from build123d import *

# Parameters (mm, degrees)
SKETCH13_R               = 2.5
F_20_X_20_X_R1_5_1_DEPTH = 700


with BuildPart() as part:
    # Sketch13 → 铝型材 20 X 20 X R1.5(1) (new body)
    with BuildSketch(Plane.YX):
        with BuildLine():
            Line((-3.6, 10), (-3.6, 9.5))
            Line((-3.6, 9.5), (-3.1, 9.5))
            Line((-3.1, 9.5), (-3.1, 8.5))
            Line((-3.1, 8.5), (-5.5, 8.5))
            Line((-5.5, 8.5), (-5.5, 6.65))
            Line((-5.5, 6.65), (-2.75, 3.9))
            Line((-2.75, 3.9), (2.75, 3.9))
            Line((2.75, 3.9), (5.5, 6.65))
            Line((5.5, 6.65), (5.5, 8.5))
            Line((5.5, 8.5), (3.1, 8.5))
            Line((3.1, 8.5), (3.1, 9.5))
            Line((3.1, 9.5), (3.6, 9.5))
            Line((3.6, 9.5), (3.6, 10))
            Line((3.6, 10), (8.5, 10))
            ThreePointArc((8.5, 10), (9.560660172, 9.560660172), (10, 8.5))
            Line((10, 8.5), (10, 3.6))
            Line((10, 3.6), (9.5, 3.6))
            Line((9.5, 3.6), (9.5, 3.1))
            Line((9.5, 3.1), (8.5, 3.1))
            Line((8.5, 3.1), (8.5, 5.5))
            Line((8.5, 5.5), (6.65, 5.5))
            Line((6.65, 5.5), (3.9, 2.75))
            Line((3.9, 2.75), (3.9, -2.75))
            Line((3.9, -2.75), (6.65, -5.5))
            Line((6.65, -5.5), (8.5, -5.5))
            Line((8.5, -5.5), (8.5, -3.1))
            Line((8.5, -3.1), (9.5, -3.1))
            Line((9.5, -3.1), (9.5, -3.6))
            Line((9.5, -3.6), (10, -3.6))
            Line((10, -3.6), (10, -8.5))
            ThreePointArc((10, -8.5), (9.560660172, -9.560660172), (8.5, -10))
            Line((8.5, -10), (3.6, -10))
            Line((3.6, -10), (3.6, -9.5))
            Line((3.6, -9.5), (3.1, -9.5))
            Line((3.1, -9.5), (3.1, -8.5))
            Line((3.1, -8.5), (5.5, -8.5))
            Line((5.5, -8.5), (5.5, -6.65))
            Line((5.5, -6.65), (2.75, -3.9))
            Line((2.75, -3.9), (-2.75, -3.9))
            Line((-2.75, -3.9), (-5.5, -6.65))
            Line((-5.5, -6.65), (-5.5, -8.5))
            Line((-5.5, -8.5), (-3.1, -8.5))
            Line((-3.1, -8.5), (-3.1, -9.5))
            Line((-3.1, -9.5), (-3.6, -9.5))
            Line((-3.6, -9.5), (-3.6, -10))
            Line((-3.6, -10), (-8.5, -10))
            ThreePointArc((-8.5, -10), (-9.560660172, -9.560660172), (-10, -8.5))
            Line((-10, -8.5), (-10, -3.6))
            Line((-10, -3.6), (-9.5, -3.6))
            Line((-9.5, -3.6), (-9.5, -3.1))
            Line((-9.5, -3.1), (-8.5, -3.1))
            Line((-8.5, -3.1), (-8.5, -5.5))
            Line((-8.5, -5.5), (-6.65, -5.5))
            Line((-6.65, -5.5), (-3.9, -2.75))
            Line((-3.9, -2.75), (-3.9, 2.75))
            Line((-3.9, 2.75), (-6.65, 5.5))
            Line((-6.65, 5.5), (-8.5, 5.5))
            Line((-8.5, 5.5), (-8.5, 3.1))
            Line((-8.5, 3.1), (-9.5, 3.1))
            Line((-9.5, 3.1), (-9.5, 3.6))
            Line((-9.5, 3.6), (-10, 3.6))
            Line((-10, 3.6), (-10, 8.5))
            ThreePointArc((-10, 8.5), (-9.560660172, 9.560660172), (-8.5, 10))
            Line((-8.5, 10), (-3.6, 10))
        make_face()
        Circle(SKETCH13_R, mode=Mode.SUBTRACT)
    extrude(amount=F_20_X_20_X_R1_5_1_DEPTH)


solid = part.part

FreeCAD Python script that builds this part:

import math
import FreeCAD as App
import Part
import Sketcher
from FreeCAD import Vector
Q = App.Units.Quantity

doc = App.newDocument("Part")
body = doc.addObject("PartDesign::Body", "Body")

# Sketch on XY plane
sketch1 = body.newObject("Sketcher::SketchObject", "Sketch")
sketch1.AttachmentSupport = (doc.getObject("XY_Plane"), [""])
sketch1.MapMode = "FlatFace"
sketch1.addGeometry(Part.LineSegment(Vector(9.5, -3.6, 0), Vector(10, -3.6, 0)), False)
sketch1.addGeometry(Part.LineSegment(Vector(10, -3.6, 0), Vector(10, -8.5, 0)), False)
sketch1.addGeometry(Part.ArcOfCircle(Part.Circle(Vector(8.5, -8.5, 0), Vector(0, 0, 1), 1.5), math.radians(-90), math.radians(0)), False)
sketch1.addGeometry(Part.LineSegment(Vector(8.5, -10, 0), Vector(3.6, -10, 0)), False)
sketch1.addGeometry(Part.LineSegment(Vector(3.6, -10, 0), Vector(3.6, -9.5, 0)), False)
sketch1.addGeometry(Part.LineSegment(Vector(3.6, -9.5, 0), Vector(3.1, -9.5, 0)), False)
sketch1.addGeometry(Part.LineSegment(Vector(3.1, -9.5, 0), Vector(3.1, -8.5, 0)), False)
sketch1.addGeometry(Part.LineSegment(Vector(3.1, -8.5, 0), Vector(5.5, -8.5, 0)), False)
sketch1.addGeometry(Part.LineSegment(Vector(5.5, -8.5, 0), Vector(5.5, -6.65, 0)), False)
sketch1.addGeometry(Part.LineSegment(Vector(5.5, -6.65, 0), Vector(2.75, -3.9, 0)), False)
sketch1.addGeometry(Part.LineSegment(Vector(2.75, -3.9, 0), Vector(-2.75, -3.9, 0)), False)
sketch1.addGeometry(Part.LineSegment(Vector(-2.75, -3.9, 0), Vector(-5.5, -6.65, 0)), False)
sketch1.addGeometry(Part.LineSegment(Vector(-5.5, -6.65, 0), Vector(-5.5, -8.5, 0)), False)
sketch1.addGeometry(Part.LineSegment(Vector(-5.5, -8.5, 0), Vector(-3.1, -8.5, 0)), False)
sketch1.addGeometry(Part.LineSegment(Vector(-3.1, -8.5, 0), Vector(-3.1, -9.5, 0)), False)
sketch1.addGeometry(Part.LineSegment(Vector(-3.1, -9.5, 0), Vector(-3.6, -9.5, 0)), False)
sketch1.addGeometry(Part.LineSegment(Vector(-3.6, -9.5, 0), Vector(-3.6, -10, 0)), False)
sketch1.addGeometry(Part.LineSegment(Vector(-3.6, -10, 0), Vector(-8.5, -10, 0)), False)
sketch1.addGeometry(Part.ArcOfCircle(Part.Circle(Vector(-8.5, -8.5, 0), Vector(0, 0, 1), 1.5), math.radians(180), math.radians(270)), False)
sketch1.addGeometry(Part.LineSegment(Vector(-10, -8.5, 0), Vector(-10, -3.6, 0)), False)
sketch1.addGeometry(Part.LineSegment(Vector(-10, -3.6, 0), Vector(-9.5, -3.6, 0)), False)
sketch1.addGeometry(Part.LineSegment(Vector(-9.5, -3.6, 0), Vector(-9.5, -3.1, 0)), False)
sketch1.addGeometry(Part.LineSegment(Vector(-9.5, -3.1, 0), Vector(-8.5, -3.1, 0)), False)
sketch1.addGeometry(Part.LineSegment(Vector(-8.5, -3.1, 0), Vector(-8.5, -5.5, 0)), False)
sketch1.addGeometry(Part.LineSegment(Vector(-8.5, -5.5, 0), Vector(-6.65, -5.5, 0)), False)
sketch1.addGeometry(Part.LineSegment(Vector(-6.65, -5.5, 0), Vector(-3.9, -2.75, 0)), False)
sketch1.addGeometry(Part.LineSegment(Vector(-3.9, -2.75, 0), Vector(-3.9, 2.75, 0)), False)
sketch1.addGeometry(Part.LineSegment(Vector(-3.9, 2.75, 0), Vector(-6.65, 5.5, 0)), False)
sketch1.addGeometry(Part.LineSegment(Vector(-6.65, 5.5, 0), Vector(-8.5, 5.5, 0)), False)
sketch1.addGeometry(Part.LineSegment(Vector(-8.5, 5.5, 0), Vector(-8.5, 3.1, 0)), False)
sketch1.addGeometry(Part.LineSegment(Vector(-8.5, 3.1, 0), Vector(-9.5, 3.1, 0)), False)
sketch1.addGeometry(Part.LineSegment(Vector(-9.5, 3.1, 0), Vector(-9.5, 3.6, 0)), False)
sketch1.addGeometry(Part.LineSegment(Vector(-9.5, 3.6, 0), Vector(-10, 3.6, 0)), False)
sketch1.addGeometry(Part.LineSegment(Vector(-10, 3.6, 0), Vector(-10, 8.5, 0)), False)
sketch1.addGeometry(Part.ArcOfCircle(Part.Circle(Vector(-8.5, 8.5, 0), Vector(0, 0, 1), 1.5), math.radians(90), math.radians(180)), False)
sketch1.addGeometry(Part.LineSegment(Vector(-8.5, 10, 0), Vector(-3.6, 10, 0)), False)
sketch1.addGeometry(Part.LineSegment(Vector(-3.6, 10, 0), Vector(-3.6, 9.5, 0)), False)
sketch1.addGeometry(Part.LineSegment(Vector(-3.6, 9.5, 0), Vector(-3.1, 9.5, 0)), False)
sketch1.addGeometry(Part.LineSegment(Vector(-3.1, 9.5, 0), Vector(-3.1, 8.5, 0)), False)
sketch1.addGeometry(Part.LineSegment(Vector(-3.1, 8.5, 0), Vector(-5.5, 8.5, 0)), False)
sketch1.addGeometry(Part.LineSegment(Vector(-5.5, 8.5, 0), Vector(-5.5, 6.65, 0)), False)
sketch1.addGeometry(Part.LineSegment(Vector(-5.5, 6.65, 0), Vector(-2.75, 3.9, 0)), False)
sketch1.addGeometry(Part.LineSegment(Vector(-2.75, 3.9, 0), Vector(2.75, 3.9, 0)), False)
sketch1.addGeometry(Part.LineSegment(Vector(2.75, 3.9, 0), Vector(5.5, 6.65, 0)), False)
sketch1.addGeometry(Part.LineSegment(Vector(5.5, 6.65, 0), Vector(5.5, 8.5, 0)), False)
sketch1.addGeometry(Part.LineSegment(Vector(5.5, 8.5, 0), Vector(3.1, 8.5, 0)), False)
sketch1.addGeometry(Part.LineSegment(Vector(3.1, 8.5, 0), Vector(3.1, 9.5, 0)), False)
sketch1.addGeometry(Part.LineSegment(Vector(3.1, 9.5, 0), Vector(3.6, 9.5, 0)), False)
sketch1.addGeometry(Part.LineSegment(Vector(3.6, 9.5, 0), Vector(3.6, 10, 0)), False)
sketch1.addGeometry(Part.LineSegment(Vector(3.6, 10, 0), Vector(8.5, 10, 0)), False)
sketch1.addGeometry(Part.ArcOfCircle(Part.Circle(Vector(8.5, 8.5, 0), Vector(0, 0, 1), 1.5), math.radians(0), math.radians(90)), False)
sketch1.addGeometry(Part.LineSegment(Vector(10, 8.5, 0), Vector(10, 3.6, 0)), False)
sketch1.addGeometry(Part.LineSegment(Vector(10, 3.6, 0), Vector(9.5, 3.6, 0)), False)
sketch1.addGeometry(Part.LineSegment(Vector(9.5, 3.6, 0), Vector(9.5, 3.1, 0)), False)
sketch1.addGeometry(Part.LineSegment(Vector(9.5, 3.1, 0), Vector(8.5, 3.1, 0)), False)
sketch1.addGeometry(Part.LineSegment(Vector(8.5, 3.1, 0), Vector(8.5, 5.5, 0)), False)
sketch1.addGeometry(Part.LineSegment(Vector(8.5, 5.5, 0), Vector(6.65, 5.5, 0)), False)
sketch1.addGeometry(Part.LineSegment(Vector(6.65, 5.5, 0), Vector(3.9, 2.75, 0)), False)
sketch1.addGeometry(Part.LineSegment(Vector(3.9, 2.75, 0), Vector(3.9, -2.75, 0)), False)
sketch1.addGeometry(Part.LineSegment(Vector(3.9, -2.75, 0), Vector(6.65, -5.5, 0)), False)
sketch1.addGeometry(Part.LineSegment(Vector(6.65, -5.5, 0), Vector(8.5, -5.5, 0)), False)
sketch1.addGeometry(Part.LineSegment(Vector(8.5, -5.5, 0), Vector(8.5, -3.1, 0)), False)
sketch1.addGeometry(Part.LineSegment(Vector(8.5, -3.1, 0), Vector(9.5, -3.1, 0)), False)
sketch1.addGeometry(Part.LineSegment(Vector(9.5, -3.1, 0), Vector(9.5, -3.6, 0)), False)
sketch1.addGeometry(Part.Circle(Vector(0, 0, 0), Vector(0, 0, 1), 2.5), False)
sketch1.addConstraint(Sketcher.Constraint("Coincident", 0, 2, 1, 1))
sketch1.addConstraint(Sketcher.Constraint("Tangent", 1, 2, 2, 2))
sketch1.addConstraint(Sketcher.Constraint("Tangent", 2, 1, 3, 1))
sketch1.addConstraint(Sketcher.Constraint("Coincident", 3, 2, 4, 1))
sketch1.addConstraint(Sketcher.Constraint("Coincident", 4, 2, 5, 1))
sketch1.addConstraint(Sketcher.Constraint("Coincident", 5, 2, 6, 1))
sketch1.addConstraint(Sketcher.Constraint("Coincident", 6, 2, 7, 1))
sketch1.addConstraint(Sketcher.Constraint("Coincident", 7, 2, 8, 1))
sketch1.addConstraint(Sketcher.Constraint("Coincident", 8, 2, 9, 1))
sketch1.addConstraint(Sketcher.Constraint("Coincident", 9, 2, 10, 1))
sketch1.addConstraint(Sketcher.Constraint("Coincident", 10, 2, 11, 1))
sketch1.addConstraint(Sketcher.Constraint("Coincident", 11, 2, 12, 1))
sketch1.addConstraint(Sketcher.Constraint("Coincident", 12, 2, 13, 1))
sketch1.addConstraint(Sketcher.Constraint("Coincident", 13, 2, 14, 1))
sketch1.addConstraint(Sketcher.Constraint("Coincident", 14, 2, 15, 1))
sketch1.addConstraint(Sketcher.Constraint("Coincident", 15, 2, 16, 1))
sketch1.addConstraint(Sketcher.Constraint("Coincident", 16, 2, 17, 1))
sketch1.addConstraint(Sketcher.Constraint("Tangent", 17, 2, 18, 2))
sketch1.addConstraint(Sketcher.Constraint("Tangent", 18, 1, 19, 1))
sketch1.addConstraint(Sketcher.Constraint("Coincident", 19, 2, 20, 1))
sketch1.addConstraint(Sketcher.Constraint("Coincident", 20, 2, 21, 1))
sketch1.addConstraint(Sketcher.Constraint("Coincident", 21, 2, 22, 1))
sketch1.addConstraint(Sketcher.Constraint("Coincident", 22, 2, 23, 1))
sketch1.addConstraint(Sketcher.Constraint("Coincident", 23, 2, 24, 1))
sketch1.addConstraint(Sketcher.Constraint("Coincident", 24, 2, 25, 1))
sketch1.addConstraint(Sketcher.Constraint("Coincident", 25, 2, 26, 1))
sketch1.addConstraint(Sketcher.Constraint("Coincident", 26, 2, 27, 1))
sketch1.addConstraint(Sketcher.Constraint("Coincident", 27, 2, 28, 1))
sketch1.addConstraint(Sketcher.Constraint("Coincident", 28, 2, 29, 1))
sketch1.addConstraint(Sketcher.Constraint("Coincident", 29, 2, 30, 1))
sketch1.addConstraint(Sketcher.Constraint("Coincident", 30, 2, 31, 1))
sketch1.addConstraint(Sketcher.Constraint("Coincident", 31, 2, 32, 1))
sketch1.addConstraint(Sketcher.Constraint("Coincident", 32, 2, 33, 1))
sketch1.addConstraint(Sketcher.Constraint("Tangent", 33, 2, 34, 2))
sketch1.addConstraint(Sketcher.Constraint("Tangent", 34, 1, 35, 1))
sketch1.addConstraint(Sketcher.Constraint("Coincident", 35, 2, 36, 1))
sketch1.addConstraint(Sketcher.Constraint("Coincident", 36, 2, 37, 1))
sketch1.addConstraint(Sketcher.Constraint("Coincident", 37, 2, 38, 1))
sketch1.addConstraint(Sketcher.Constraint("Coincident", 38, 2, 39, 1))
sketch1.addConstraint(Sketcher.Constraint("Coincident", 39, 2, 40, 1))
sketch1.addConstraint(Sketcher.Constraint("Coincident", 40, 2, 41, 1))
sketch1.addConstraint(Sketcher.Constraint("Coincident", 41, 2, 42, 1))
sketch1.addConstraint(Sketcher.Constraint("Coincident", 42, 2, 43, 1))
sketch1.addConstraint(Sketcher.Constraint("Coincident", 43, 2, 44, 1))
sketch1.addConstraint(Sketcher.Constraint("Coincident", 44, 2, 45, 1))
sketch1.addConstraint(Sketcher.Constraint("Coincident", 45, 2, 46, 1))
sketch1.addConstraint(Sketcher.Constraint("Coincident", 46, 2, 47, 1))
sketch1.addConstraint(Sketcher.Constraint("Coincident", 47, 2, 48, 1))
sketch1.addConstraint(Sketcher.Constraint("Coincident", 48, 2, 49, 1))
sketch1.addConstraint(Sketcher.Constraint("Tangent", 49, 2, 50, 2))
sketch1.addConstraint(Sketcher.Constraint("Tangent", 50, 1, 51, 1))
sketch1.addConstraint(Sketcher.Constraint("Coincident", 51, 2, 52, 1))
sketch1.addConstraint(Sketcher.Constraint("Coincident", 52, 2, 53, 1))
sketch1.addConstraint(Sketcher.Constraint("Coincident", 53, 2, 54, 1))
sketch1.addConstraint(Sketcher.Constraint("Coincident", 54, 2, 55, 1))
sketch1.addConstraint(Sketcher.Constraint("Coincident", 55, 2, 56, 1))
sketch1.addConstraint(Sketcher.Constraint("Coincident", 56, 2, 57, 1))
sketch1.addConstraint(Sketcher.Constraint("Coincident", 57, 2, 58, 1))
sketch1.addConstraint(Sketcher.Constraint("Coincident", 58, 2, 59, 1))
sketch1.addConstraint(Sketcher.Constraint("Coincident", 59, 2, 60, 1))
sketch1.addConstraint(Sketcher.Constraint("Coincident", 60, 2, 61, 1))
sketch1.addConstraint(Sketcher.Constraint("Coincident", 61, 2, 62, 1))
sketch1.addConstraint(Sketcher.Constraint("Coincident", 62, 2, 63, 1))
sketch1.addConstraint(Sketcher.Constraint("Coincident", 63, 2, 0, 1))
sketch1.addConstraint(Sketcher.Constraint("Horizontal", 0))
sketch1.addConstraint(Sketcher.Constraint("Vertical", 1))
sketch1.addConstraint(Sketcher.Constraint("Horizontal", 3))
sketch1.addConstraint(Sketcher.Constraint("Vertical", 4))
sketch1.addConstraint(Sketcher.Constraint("Horizontal", 5))
sketch1.addConstraint(Sketcher.Constraint("Vertical", 6))
sketch1.addConstraint(Sketcher.Constraint("Horizontal", 7))
sketch1.addConstraint(Sketcher.Constraint("Vertical", 8))
sketch1.addConstraint(Sketcher.Constraint("Horizontal", 10))
sketch1.addConstraint(Sketcher.Constraint("Vertical", 12))
sketch1.addConstraint(Sketcher.Constraint("Horizontal", 13))
sketch1.addConstraint(Sketcher.Constraint("Vertical", 14))
sketch1.addConstraint(Sketcher.Constraint("Horizontal", 15))
sketch1.addConstraint(Sketcher.Constraint("Vertical", 16))
sketch1.addConstraint(Sketcher.Constraint("Horizontal", 17))
sketch1.addConstraint(Sketcher.Constraint("Vertical", 19))
sketch1.addConstraint(Sketcher.Constraint("Horizontal", 20))
sketch1.addConstraint(Sketcher.Constraint("Vertical", 21))
sketch1.addConstraint(Sketcher.Constraint("Horizontal", 22))
sketch1.addConstraint(Sketcher.Constraint("Vertical", 23))
sketch1.addConstraint(Sketcher.Constraint("Horizontal", 24))
sketch1.addConstraint(Sketcher.Constraint("Vertical", 26))
sketch1.addConstraint(Sketcher.Constraint("Horizontal", 28))
sketch1.addConstraint(Sketcher.Constraint("Vertical", 29))
sketch1.addConstraint(Sketcher.Constraint("Horizontal", 30))
sketch1.addConstraint(Sketcher.Constraint("Vertical", 31))
sketch1.addConstraint(Sketcher.Constraint("Horizontal", 32))
sketch1.addConstraint(Sketcher.Constraint("Vertical", 33))
sketch1.addConstraint(Sketcher.Constraint("Horizontal", 35))
sketch1.addConstraint(Sketcher.Constraint("Vertical", 36))
sketch1.addConstraint(Sketcher.Constraint("Horizontal", 37))
sketch1.addConstraint(Sketcher.Constraint("Vertical", 38))
sketch1.addConstraint(Sketcher.Constraint("Horizontal", 39))
sketch1.addConstraint(Sketcher.Constraint("Vertical", 40))
sketch1.addConstraint(Sketcher.Constraint("Horizontal", 42))
sketch1.addConstraint(Sketcher.Constraint("Vertical", 44))
sketch1.addConstraint(Sketcher.Constraint("Horizontal", 45))
sketch1.addConstraint(Sketcher.Constraint("Vertical", 46))
sketch1.addConstraint(Sketcher.Constraint("Horizontal", 47))
sketch1.addConstraint(Sketcher.Constraint("Vertical", 48))
sketch1.addConstraint(Sketcher.Constraint("Horizontal", 49))
sketch1.addConstraint(Sketcher.Constraint("Vertical", 51))
sketch1.addConstraint(Sketcher.Constraint("Horizontal", 52))
sketch1.addConstraint(Sketcher.Constraint("Vertical", 53))
sketch1.addConstraint(Sketcher.Constraint("Horizontal", 54))
sketch1.addConstraint(Sketcher.Constraint("Vertical", 55))
sketch1.addConstraint(Sketcher.Constraint("Horizontal", 56))
sketch1.addConstraint(Sketcher.Constraint("Vertical", 58))
sketch1.addConstraint(Sketcher.Constraint("Horizontal", 60))
sketch1.addConstraint(Sketcher.Constraint("Vertical", 61))
sketch1.addConstraint(Sketcher.Constraint("Horizontal", 62))
sketch1.addConstraint(Sketcher.Constraint("Vertical", 63))
sketch1.addConstraint(Sketcher.Constraint("Coincident", 64, 3, -1, 1))
sketch1.addConstraint(Sketcher.Constraint("Equal", 2, 18))
sketch1.addConstraint(Sketcher.Constraint("Equal", 18, 34))
sketch1.addConstraint(Sketcher.Constraint("Equal", 34, 50))
sketch1.addConstraint(Sketcher.Constraint("Symmetric", 2, 3, 34, 3, -1, 1))
sketch1.addConstraint(Sketcher.Constraint("Symmetric", 18, 3, 50, 3, -1, 1))
sketch1.addConstraint(Sketcher.Constraint("Symmetric", 4, 2, 36, 2, -1, 1))
sketch1.addConstraint(Sketcher.Constraint("Symmetric", 6, 2, 38, 2, -1, 1))
sketch1.addConstraint(Sketcher.Constraint("Symmetric", 8, 2, 40, 2, -1, 1))
sketch1.addConstraint(Sketcher.Constraint("Symmetric", 9, 2, 41, 2, -1, 1))
sketch1.addConstraint(Sketcher.Constraint("Symmetric", 11, 2, 43, 2, -1, 1))
sketch1.addConstraint(Sketcher.Constraint("Symmetric", 13, 2, 45, 2, -1, 1))
sketch1.addConstraint(Sketcher.Constraint("Symmetric", 15, 2, 47, 2, -1, 1))
sketch1.addConstraint(Sketcher.Constraint("Symmetric", 20, 2, 52, 2, -1, 1))
sketch1.addConstraint(Sketcher.Constraint("Symmetric", 22, 2, 54, 2, -1, 1))
sketch1.addConstraint(Sketcher.Constraint("Symmetric", 24, 2, 56, 2, -1, 1))
sketch1.addConstraint(Sketcher.Constraint("Symmetric", 25, 2, 57, 2, -1, 1))
sketch1.addConstraint(Sketcher.Constraint("Symmetric", 27, 2, 59, 2, -1, 1))
sketch1.addConstraint(Sketcher.Constraint("Symmetric", 29, 2, 61, 2, -1, 1))
sketch1.addConstraint(Sketcher.Constraint("Symmetric", 31, 2, 63, 2, -1, 1))
sketch1.addConstraint(Sketcher.Constraint("Symmetric", 2, 3, 18, 3, -2))
sketch1.addConstraint(Sketcher.Constraint("Symmetric", 8, 2, 11, 2, -2))
sketch1.addConstraint(Sketcher.Constraint("Symmetric", 6, 2, 13, 2, -2))
sketch1.addConstraint(Sketcher.Constraint("Symmetric", 4, 2, 15, 2, -2))
sketch1.addConstraint(Sketcher.Constraint("Symmetric", 31, 2, 52, 2, -2))
sketch1.addConstraint(Sketcher.Constraint("Symmetric", 29, 2, 54, 2, -2))
sketch1.addConstraint(Sketcher.Constraint("Symmetric", 27, 2, 56, 2, -2))
sketch1.addConstraint(Sketcher.Constraint("Perpendicular", 9, 11))
sketch1.addConstraint(Sketcher.Constraint("Parallel", 11, 25))
sketch1.addConstraint(Sketcher.Constraint("Perpendicular", 25, 27))
sketch1.addConstraint(Sketcher.Constraint("Perpendicular", 41, 43))
sketch1.addConstraint(Sketcher.Constraint("Perpendicular", 57, 59))
sketch1.addConstraint(Sketcher.Constraint("Horizontal", 1, 2, 6, 2))
sketch1.addConstraint(Sketcher.Constraint("Horizontal", 26, 2, 57, 2))
sketch1.addConstraint(Sketcher.Constraint("Vertical", 17, 2, 22, 2))
sketch1.addConstraint(Sketcher.Constraint("Equal", 0, 5))
sketch1.addConstraint(Sketcher.Constraint("Equal", 49, 1))
sketch1.addConstraint(Sketcher.Constraint("Equal", 52, 4))
sketch1.addConstraint(Sketcher.Constraint("Equal", 60, 8))
sketch1.addConstraint(Sketcher.Constraint("Equal", 16, 21))
sketch1.addConstraint(Sketcher.Constraint("Equal", 45, 23))
sketch1.addConstraint(Sketcher.Constraint("Equal", 42, 26))
sketch1.addConstraint(Sketcher.Constraint("Equal", 11, 25))
sketch1.addConstraint(Sketcher.Constraint("Diameter", 64, Q("5 mm")))
sketch1.addConstraint(Sketcher.Constraint("Radius", 2, Q("1.5 mm")))
sketch1.addConstraint(Sketcher.Constraint("DistanceX", 22, 1, 22, 2, Q("1 mm")))
sketch1.addConstraint(Sketcher.Constraint("DistanceX", 3, 2, 3, 1, Q("4.9 mm")))
sketch1.addConstraint(Sketcher.Constraint("DistanceX", 7, 1, 7, 2, Q("2.4 mm")))
sketch1.addConstraint(Sketcher.Constraint("DistanceX", 10, 2, 10, 1, Q("5.5 mm")))
sketch1.addConstraint(Sketcher.Constraint("DistanceX", -1, 1, 0, 2, Q("10 mm")))
sketch1.addConstraint(Sketcher.Constraint("DistanceX", 24, 1, 24, 2, Q("1.85 mm")))
pad1 = body.newObject("PartDesign::Pad", "Pad")
pad1.Profile = sketch1
pad1.Length = 700
pad1.Reversed = True

doc.recompute()
